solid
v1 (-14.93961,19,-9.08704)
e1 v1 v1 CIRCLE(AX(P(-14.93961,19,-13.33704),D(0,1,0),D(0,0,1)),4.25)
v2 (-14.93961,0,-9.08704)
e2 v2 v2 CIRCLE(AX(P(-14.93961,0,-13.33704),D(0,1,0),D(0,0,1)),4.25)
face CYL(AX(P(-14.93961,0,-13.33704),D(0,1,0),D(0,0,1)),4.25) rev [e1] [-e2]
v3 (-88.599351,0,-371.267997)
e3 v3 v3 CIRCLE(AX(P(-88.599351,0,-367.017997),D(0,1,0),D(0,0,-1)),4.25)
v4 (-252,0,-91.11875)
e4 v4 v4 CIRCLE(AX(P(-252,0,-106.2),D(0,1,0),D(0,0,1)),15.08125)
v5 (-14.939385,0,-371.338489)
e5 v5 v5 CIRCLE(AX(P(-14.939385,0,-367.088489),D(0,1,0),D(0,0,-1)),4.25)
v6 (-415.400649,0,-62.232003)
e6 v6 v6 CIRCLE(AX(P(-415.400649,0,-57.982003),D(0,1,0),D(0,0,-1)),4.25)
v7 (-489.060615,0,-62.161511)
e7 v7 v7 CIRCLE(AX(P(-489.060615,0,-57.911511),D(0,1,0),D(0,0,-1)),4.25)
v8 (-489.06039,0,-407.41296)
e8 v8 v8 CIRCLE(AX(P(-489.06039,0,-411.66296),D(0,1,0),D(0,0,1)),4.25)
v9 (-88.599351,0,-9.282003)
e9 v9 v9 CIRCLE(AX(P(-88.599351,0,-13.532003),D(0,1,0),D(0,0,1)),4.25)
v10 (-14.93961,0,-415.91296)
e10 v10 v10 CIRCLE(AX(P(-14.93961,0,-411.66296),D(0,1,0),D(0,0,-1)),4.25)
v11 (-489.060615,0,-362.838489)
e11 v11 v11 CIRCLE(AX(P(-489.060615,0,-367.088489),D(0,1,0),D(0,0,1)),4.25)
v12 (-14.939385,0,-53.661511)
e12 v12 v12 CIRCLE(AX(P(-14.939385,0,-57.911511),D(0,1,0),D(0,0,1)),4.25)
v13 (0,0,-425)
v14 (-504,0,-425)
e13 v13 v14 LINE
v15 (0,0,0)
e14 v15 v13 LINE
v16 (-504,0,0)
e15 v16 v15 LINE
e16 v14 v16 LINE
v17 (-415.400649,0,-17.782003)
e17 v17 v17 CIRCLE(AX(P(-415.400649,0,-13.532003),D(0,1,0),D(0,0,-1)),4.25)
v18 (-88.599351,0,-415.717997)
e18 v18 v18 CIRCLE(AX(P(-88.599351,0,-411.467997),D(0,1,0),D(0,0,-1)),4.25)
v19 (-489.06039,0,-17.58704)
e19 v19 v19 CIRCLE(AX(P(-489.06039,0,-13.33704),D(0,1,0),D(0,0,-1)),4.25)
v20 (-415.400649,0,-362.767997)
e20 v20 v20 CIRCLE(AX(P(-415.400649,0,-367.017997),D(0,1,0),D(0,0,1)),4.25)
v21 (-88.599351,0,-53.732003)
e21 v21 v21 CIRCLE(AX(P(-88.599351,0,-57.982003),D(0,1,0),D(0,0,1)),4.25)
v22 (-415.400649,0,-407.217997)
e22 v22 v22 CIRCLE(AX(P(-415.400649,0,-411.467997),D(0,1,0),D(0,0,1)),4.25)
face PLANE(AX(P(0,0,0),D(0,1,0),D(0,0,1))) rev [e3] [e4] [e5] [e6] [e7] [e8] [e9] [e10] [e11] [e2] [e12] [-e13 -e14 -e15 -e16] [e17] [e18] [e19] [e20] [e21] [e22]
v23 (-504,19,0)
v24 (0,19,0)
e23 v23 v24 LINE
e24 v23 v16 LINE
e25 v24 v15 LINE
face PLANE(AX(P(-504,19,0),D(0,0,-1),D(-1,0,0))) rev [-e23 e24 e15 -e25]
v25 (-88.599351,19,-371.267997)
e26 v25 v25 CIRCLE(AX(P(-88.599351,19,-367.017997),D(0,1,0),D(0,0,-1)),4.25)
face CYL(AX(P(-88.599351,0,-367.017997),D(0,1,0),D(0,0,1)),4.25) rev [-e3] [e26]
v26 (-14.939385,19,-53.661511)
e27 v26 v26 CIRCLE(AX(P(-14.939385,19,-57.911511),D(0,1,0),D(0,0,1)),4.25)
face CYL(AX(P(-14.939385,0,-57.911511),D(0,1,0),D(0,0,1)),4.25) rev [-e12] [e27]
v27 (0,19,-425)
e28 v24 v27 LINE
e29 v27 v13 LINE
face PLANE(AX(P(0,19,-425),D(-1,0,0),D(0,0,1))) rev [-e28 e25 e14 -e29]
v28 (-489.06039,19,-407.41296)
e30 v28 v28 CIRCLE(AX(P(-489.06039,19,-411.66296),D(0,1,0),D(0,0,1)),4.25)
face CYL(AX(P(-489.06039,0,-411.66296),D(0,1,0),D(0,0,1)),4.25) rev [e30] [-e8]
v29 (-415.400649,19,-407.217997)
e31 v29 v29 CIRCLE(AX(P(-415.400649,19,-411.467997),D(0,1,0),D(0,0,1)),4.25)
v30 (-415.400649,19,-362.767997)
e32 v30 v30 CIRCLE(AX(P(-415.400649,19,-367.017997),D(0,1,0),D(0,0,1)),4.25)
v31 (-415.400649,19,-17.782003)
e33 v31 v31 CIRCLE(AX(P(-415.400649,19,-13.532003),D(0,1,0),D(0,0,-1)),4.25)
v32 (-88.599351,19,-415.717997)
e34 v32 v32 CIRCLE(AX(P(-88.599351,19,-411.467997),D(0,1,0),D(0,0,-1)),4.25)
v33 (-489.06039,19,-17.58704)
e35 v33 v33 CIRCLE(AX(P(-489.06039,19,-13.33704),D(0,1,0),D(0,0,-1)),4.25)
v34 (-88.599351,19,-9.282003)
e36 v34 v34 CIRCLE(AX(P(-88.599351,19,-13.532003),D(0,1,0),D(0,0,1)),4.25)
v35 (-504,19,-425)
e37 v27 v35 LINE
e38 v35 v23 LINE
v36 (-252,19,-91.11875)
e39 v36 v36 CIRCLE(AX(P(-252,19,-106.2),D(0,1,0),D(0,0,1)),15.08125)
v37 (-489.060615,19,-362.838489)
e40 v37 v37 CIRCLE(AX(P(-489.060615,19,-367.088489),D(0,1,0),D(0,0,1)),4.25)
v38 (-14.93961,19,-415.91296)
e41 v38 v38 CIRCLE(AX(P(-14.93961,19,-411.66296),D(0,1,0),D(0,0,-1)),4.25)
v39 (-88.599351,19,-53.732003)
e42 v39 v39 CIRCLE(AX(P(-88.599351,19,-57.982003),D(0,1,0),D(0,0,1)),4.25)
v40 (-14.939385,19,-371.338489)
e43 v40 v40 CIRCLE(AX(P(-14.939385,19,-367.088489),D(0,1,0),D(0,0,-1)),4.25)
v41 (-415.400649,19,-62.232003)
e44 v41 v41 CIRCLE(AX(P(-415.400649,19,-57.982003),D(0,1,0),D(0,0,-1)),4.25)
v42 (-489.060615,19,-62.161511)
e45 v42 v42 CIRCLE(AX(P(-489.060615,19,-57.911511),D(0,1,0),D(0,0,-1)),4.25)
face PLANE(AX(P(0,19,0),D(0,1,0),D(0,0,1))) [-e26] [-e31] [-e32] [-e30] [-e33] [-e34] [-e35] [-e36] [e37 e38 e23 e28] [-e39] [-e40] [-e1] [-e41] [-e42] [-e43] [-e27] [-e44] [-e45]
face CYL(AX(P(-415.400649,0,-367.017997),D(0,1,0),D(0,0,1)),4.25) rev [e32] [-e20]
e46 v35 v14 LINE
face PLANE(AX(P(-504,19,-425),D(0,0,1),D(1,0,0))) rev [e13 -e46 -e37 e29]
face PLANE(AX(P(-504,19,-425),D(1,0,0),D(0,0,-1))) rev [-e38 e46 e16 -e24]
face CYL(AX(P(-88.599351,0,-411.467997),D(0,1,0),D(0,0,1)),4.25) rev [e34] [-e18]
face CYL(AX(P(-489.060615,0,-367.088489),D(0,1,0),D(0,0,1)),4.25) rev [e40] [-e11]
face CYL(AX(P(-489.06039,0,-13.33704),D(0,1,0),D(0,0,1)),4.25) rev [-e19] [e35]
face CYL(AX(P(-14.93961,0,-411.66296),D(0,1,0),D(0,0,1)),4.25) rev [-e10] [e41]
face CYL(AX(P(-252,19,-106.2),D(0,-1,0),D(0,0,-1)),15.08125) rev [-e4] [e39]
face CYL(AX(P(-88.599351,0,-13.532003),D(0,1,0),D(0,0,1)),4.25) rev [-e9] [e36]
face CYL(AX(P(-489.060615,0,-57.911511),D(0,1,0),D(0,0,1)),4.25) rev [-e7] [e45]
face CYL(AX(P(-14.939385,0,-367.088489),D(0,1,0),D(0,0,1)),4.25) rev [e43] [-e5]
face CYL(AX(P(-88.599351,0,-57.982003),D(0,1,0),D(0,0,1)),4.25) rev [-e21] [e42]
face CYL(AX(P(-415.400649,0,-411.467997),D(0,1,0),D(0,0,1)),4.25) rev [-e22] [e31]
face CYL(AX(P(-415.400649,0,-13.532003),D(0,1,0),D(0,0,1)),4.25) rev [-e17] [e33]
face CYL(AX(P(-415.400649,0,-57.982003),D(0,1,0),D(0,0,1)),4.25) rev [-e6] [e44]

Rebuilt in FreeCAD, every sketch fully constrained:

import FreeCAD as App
import Part
import Sketcher
from FreeCAD import Vector
Q = App.Units.Quantity


def add_polygon(sketch, points):
    """Adds a closed chain of lines whose ends are joined by coincident constraints."""
    first, n = sketch.GeometryCount, len(points)
    for a, b in zip(points, points[1:] + points[:1]):
        sketch.addGeometry(Part.LineSegment(App.Vector(*a, 0), App.Vector(*b, 0)), False)
    for i in range(n):
        sketch.addConstraint(Sketcher.Constraint("Coincident", first + i, 2, first + (i + 1) % n, 1))

doc = App.newDocument("Part")
body = doc.addObject("PartDesign::Body", "Body")

# Sketch on XZ plane
sketch1 = body.newObject("Sketcher::SketchObject", "Sketch")
sketch1.AttachmentSupport = (doc.getObject("XZ_Plane"), [""])
sketch1.MapMode = "FlatFace"
add_polygon(sketch1, [(-504, -425), (-504, 0), (0, 0), (0, -425)])  # lines 0-3
sketch1.addGeometry(Part.Circle(Vector(-252, -106, 0), Vector(0, 0, 1), 15), False)  # 4
sketch1.addConstraint([
    Sketcher.Constraint("Vertical", 0),
    Sketcher.Constraint("Horizontal", 1),
    Sketcher.Constraint("Vertical", 2),
    Sketcher.Constraint("Horizontal", 3),
    Sketcher.Constraint("Coincident", 1, 2, -1, 1),
    Sketcher.Constraint("DistanceX", 1, 1, 1, 2, Q("504 mm")),
    Sketcher.Constraint("DistanceY", 0, 1, 0, 2, Q("425 mm")),
    Sketcher.Constraint("DistanceX", 4, 3, -1, 1, Q("252 mm")),
    Sketcher.Constraint("Diameter", 4, Q("30.1625 mm")),
    Sketcher.Constraint("DistanceY", 4, 3, -1, 1, Q("106.2 mm")),
])
pad1 = body.newObject("PartDesign::Pad", "Pad")
pad1.Profile = sketch1
pad1.Length = 19
pad1.Reversed = True

# Sketch on XZ plane
sketch2 = body.newObject("Sketcher::SketchObject", "Sketch001")
sketch2.AttachmentSupport = (doc.getObject("XZ_Plane"), [""])
sketch2.MapMode = "FlatFace"
sketch2.AttachmentOffset = App.Placement(Vector(0, 0, -19), App.Rotation())
sketch2.addGeometry([
    Part.Circle(Vector(-88.6, -58, 0), Vector(0, 0, 1), 4.2),  # 0
    Part.Circle(Vector(-14.9, -57.9, 0), Vector(0, 0, 1), 4.2),  # 1
    Part.Circle(Vector(-88.6, -13.5, 0), Vector(0, 0, 1), 4.2),  # 2
    Part.Circle(Vector(-14.9, -13.3, 0), Vector(0, 0, 1), 4.2),  # 3
    Part.Circle(Vector(-14.9, -411.7, 0), Vector(0, 0, 1), 4.2),  # 4
    Part.Circle(Vector(-88.6, -411.5, 0), Vector(0, 0, 1), 4.2),  # 5
    Part.Circle(Vector(-14.9, -367.1, 0), Vector(0, 0, 1), 4.2),  # 6
    Part.Circle(Vector(-88.6, -367, 0), Vector(0, 0, 1), 4.2),  # 7
    Part.Circle(Vector(-415.4, -367, 0), Vector(0, 0, 1), 4.2),  # 8
    Part.Circle(Vector(-489.1, -367.1, 0), Vector(0, 0, 1), 4.2),  # 9
    Part.Circle(Vector(-415.4, -411.5, 0), Vector(0, 0, 1), 4.2),  # 10
    Part.Circle(Vector(-489.1, -411.7, 0), Vector(0, 0, 1), 4.2),  # 11
    Part.Circle(Vector(-489.1, -13.3, 0), Vector(0, 0, 1), 4.2),  # 12
    Part.Circle(Vector(-415.4, -13.5, 0), Vector(0, 0, 1), 4.2),  # 13
    Part.Circle(Vector(-489.1, -57.9, 0), Vector(0, 0, 1), 4.2),  # 14
    Part.Circle(Vector(-415.4, -58, 0), Vector(0, 0, 1), 4.2),  # 15
], False)
sketch2.addConstraint([
    Sketcher.Constraint("Equal", 0, 1),
    Sketcher.Constraint("Equal", 1, 2),
    Sketcher.Constraint("Equal", 2, 3),
    Sketcher.Constraint("Equal", 3, 4),
    Sketcher.Constraint("Equal", 4, 5),
    Sketcher.Constraint("Equal", 5, 6),
    Sketcher.Constraint("Equal", 6, 7),
    Sketcher.Constraint("Equal", 7, 8),
    Sketcher.Constraint("Equal", 8, 9),
    Sketcher.Constraint("Equal", 9, 10),
    Sketcher.Constraint("Equal", 10, 11),
    Sketcher.Constraint("Equal", 11, 12),
    Sketcher.Constraint("Equal", 12, 13),
    Sketcher.Constraint("Equal", 13, 14),
    Sketcher.Constraint("Equal", 14, 15),
    Sketcher.Constraint("Horizontal", 7, 3, 8, 3),
    Sketcher.Constraint("Horizontal", 6, 3, 9, 3),
    Sketcher.Constraint("Horizontal", 5, 3, 10, 3),
    Sketcher.Constraint("Horizontal", 4, 3, 11, 3),
    Sketcher.Constraint("Horizontal", 3, 3, 12, 3),
    Sketcher.Constraint("Horizontal", 2, 3, 13, 3),
    Sketcher.Constraint("Horizontal", 1, 3, 14, 3),
    Sketcher.Constraint("Horizontal", 0, 3, 15, 3),
    Sketcher.Constraint("Vertical", 0, 3, 2, 3),
    Sketcher.Constraint("Vertical", 3, 3, 4, 3),
    Sketcher.Constraint("Vertical", 2, 3, 5, 3),
    Sketcher.Constraint("Vertical", 1, 3, 6, 3),
    Sketcher.Constraint("Vertical", 5, 3, 7, 3),
    Sketcher.Constraint("Vertical", 8, 3, 10, 3),
    Sketcher.Constraint("Vertical", 11, 3, 12, 3),
    Sketcher.Constraint("Vertical", 10, 3, 13, 3),
    Sketcher.Constraint("Vertical", 9, 3, 14, 3),
    Sketcher.Constraint("Vertical", 13, 3, 15, 3),
    Sketcher.Constraint("Diameter", 0, Q("8.5 mm")),
    Sketcher.Constraint("DistanceY", 0, 3, 2, 3, Q("44.45 mm")),
    Sketcher.Constraint("DistanceY", 5, 3, 7, 3, Q("44.45 mm")),
    Sketcher.Constraint("DistanceX", 0, 3, -1, 1, Q("88.599351 mm")),
    Sketcher.Constraint("DistanceY", 1, 3, -1, 1, Q("57.911511 mm")),
    Sketcher.Constraint("DistanceX", 3, 3, -1, 1, Q("14.93961 mm")),
    Sketcher.Constraint("DistanceY", 3, 3, -1, 1, Q("13.33704 mm")),
    Sketcher.Constraint("DistanceY", 4, 3, -1, 1, Q("411.66296 mm")),
    Sketcher.Constraint("DistanceY", 6, 3, -1, 1, Q("367.088489 mm")),
    Sketcher.Constraint("DistanceX", 8, 3, -1, 1, Q("415.400649 mm")),
    Sketcher.Constraint("DistanceX", 11, 3, -1, 1, Q("489.06039 mm")),
    Sketcher.Constraint("DistanceY", 0, 3, 1, 3, Q("0.070491 mm")),
    Sketcher.Constraint("DistanceY", 5, 3, 6, 3, Q("44.379509 mm")),
    Sketcher.Constraint("DistanceX", 9, 3, 6, 3, Q("474.12123 mm")),
    Sketcher.Constraint("DistanceX", 1, 3, -1, 1, Q("14.939385 mm")),
])
pocket1 = body.newObject("PartDesign::Pocket", "Pocket")
pocket1.Profile = sketch2
pocket1.Length = 19
pocket1.Reversed = True

doc.recompute()
